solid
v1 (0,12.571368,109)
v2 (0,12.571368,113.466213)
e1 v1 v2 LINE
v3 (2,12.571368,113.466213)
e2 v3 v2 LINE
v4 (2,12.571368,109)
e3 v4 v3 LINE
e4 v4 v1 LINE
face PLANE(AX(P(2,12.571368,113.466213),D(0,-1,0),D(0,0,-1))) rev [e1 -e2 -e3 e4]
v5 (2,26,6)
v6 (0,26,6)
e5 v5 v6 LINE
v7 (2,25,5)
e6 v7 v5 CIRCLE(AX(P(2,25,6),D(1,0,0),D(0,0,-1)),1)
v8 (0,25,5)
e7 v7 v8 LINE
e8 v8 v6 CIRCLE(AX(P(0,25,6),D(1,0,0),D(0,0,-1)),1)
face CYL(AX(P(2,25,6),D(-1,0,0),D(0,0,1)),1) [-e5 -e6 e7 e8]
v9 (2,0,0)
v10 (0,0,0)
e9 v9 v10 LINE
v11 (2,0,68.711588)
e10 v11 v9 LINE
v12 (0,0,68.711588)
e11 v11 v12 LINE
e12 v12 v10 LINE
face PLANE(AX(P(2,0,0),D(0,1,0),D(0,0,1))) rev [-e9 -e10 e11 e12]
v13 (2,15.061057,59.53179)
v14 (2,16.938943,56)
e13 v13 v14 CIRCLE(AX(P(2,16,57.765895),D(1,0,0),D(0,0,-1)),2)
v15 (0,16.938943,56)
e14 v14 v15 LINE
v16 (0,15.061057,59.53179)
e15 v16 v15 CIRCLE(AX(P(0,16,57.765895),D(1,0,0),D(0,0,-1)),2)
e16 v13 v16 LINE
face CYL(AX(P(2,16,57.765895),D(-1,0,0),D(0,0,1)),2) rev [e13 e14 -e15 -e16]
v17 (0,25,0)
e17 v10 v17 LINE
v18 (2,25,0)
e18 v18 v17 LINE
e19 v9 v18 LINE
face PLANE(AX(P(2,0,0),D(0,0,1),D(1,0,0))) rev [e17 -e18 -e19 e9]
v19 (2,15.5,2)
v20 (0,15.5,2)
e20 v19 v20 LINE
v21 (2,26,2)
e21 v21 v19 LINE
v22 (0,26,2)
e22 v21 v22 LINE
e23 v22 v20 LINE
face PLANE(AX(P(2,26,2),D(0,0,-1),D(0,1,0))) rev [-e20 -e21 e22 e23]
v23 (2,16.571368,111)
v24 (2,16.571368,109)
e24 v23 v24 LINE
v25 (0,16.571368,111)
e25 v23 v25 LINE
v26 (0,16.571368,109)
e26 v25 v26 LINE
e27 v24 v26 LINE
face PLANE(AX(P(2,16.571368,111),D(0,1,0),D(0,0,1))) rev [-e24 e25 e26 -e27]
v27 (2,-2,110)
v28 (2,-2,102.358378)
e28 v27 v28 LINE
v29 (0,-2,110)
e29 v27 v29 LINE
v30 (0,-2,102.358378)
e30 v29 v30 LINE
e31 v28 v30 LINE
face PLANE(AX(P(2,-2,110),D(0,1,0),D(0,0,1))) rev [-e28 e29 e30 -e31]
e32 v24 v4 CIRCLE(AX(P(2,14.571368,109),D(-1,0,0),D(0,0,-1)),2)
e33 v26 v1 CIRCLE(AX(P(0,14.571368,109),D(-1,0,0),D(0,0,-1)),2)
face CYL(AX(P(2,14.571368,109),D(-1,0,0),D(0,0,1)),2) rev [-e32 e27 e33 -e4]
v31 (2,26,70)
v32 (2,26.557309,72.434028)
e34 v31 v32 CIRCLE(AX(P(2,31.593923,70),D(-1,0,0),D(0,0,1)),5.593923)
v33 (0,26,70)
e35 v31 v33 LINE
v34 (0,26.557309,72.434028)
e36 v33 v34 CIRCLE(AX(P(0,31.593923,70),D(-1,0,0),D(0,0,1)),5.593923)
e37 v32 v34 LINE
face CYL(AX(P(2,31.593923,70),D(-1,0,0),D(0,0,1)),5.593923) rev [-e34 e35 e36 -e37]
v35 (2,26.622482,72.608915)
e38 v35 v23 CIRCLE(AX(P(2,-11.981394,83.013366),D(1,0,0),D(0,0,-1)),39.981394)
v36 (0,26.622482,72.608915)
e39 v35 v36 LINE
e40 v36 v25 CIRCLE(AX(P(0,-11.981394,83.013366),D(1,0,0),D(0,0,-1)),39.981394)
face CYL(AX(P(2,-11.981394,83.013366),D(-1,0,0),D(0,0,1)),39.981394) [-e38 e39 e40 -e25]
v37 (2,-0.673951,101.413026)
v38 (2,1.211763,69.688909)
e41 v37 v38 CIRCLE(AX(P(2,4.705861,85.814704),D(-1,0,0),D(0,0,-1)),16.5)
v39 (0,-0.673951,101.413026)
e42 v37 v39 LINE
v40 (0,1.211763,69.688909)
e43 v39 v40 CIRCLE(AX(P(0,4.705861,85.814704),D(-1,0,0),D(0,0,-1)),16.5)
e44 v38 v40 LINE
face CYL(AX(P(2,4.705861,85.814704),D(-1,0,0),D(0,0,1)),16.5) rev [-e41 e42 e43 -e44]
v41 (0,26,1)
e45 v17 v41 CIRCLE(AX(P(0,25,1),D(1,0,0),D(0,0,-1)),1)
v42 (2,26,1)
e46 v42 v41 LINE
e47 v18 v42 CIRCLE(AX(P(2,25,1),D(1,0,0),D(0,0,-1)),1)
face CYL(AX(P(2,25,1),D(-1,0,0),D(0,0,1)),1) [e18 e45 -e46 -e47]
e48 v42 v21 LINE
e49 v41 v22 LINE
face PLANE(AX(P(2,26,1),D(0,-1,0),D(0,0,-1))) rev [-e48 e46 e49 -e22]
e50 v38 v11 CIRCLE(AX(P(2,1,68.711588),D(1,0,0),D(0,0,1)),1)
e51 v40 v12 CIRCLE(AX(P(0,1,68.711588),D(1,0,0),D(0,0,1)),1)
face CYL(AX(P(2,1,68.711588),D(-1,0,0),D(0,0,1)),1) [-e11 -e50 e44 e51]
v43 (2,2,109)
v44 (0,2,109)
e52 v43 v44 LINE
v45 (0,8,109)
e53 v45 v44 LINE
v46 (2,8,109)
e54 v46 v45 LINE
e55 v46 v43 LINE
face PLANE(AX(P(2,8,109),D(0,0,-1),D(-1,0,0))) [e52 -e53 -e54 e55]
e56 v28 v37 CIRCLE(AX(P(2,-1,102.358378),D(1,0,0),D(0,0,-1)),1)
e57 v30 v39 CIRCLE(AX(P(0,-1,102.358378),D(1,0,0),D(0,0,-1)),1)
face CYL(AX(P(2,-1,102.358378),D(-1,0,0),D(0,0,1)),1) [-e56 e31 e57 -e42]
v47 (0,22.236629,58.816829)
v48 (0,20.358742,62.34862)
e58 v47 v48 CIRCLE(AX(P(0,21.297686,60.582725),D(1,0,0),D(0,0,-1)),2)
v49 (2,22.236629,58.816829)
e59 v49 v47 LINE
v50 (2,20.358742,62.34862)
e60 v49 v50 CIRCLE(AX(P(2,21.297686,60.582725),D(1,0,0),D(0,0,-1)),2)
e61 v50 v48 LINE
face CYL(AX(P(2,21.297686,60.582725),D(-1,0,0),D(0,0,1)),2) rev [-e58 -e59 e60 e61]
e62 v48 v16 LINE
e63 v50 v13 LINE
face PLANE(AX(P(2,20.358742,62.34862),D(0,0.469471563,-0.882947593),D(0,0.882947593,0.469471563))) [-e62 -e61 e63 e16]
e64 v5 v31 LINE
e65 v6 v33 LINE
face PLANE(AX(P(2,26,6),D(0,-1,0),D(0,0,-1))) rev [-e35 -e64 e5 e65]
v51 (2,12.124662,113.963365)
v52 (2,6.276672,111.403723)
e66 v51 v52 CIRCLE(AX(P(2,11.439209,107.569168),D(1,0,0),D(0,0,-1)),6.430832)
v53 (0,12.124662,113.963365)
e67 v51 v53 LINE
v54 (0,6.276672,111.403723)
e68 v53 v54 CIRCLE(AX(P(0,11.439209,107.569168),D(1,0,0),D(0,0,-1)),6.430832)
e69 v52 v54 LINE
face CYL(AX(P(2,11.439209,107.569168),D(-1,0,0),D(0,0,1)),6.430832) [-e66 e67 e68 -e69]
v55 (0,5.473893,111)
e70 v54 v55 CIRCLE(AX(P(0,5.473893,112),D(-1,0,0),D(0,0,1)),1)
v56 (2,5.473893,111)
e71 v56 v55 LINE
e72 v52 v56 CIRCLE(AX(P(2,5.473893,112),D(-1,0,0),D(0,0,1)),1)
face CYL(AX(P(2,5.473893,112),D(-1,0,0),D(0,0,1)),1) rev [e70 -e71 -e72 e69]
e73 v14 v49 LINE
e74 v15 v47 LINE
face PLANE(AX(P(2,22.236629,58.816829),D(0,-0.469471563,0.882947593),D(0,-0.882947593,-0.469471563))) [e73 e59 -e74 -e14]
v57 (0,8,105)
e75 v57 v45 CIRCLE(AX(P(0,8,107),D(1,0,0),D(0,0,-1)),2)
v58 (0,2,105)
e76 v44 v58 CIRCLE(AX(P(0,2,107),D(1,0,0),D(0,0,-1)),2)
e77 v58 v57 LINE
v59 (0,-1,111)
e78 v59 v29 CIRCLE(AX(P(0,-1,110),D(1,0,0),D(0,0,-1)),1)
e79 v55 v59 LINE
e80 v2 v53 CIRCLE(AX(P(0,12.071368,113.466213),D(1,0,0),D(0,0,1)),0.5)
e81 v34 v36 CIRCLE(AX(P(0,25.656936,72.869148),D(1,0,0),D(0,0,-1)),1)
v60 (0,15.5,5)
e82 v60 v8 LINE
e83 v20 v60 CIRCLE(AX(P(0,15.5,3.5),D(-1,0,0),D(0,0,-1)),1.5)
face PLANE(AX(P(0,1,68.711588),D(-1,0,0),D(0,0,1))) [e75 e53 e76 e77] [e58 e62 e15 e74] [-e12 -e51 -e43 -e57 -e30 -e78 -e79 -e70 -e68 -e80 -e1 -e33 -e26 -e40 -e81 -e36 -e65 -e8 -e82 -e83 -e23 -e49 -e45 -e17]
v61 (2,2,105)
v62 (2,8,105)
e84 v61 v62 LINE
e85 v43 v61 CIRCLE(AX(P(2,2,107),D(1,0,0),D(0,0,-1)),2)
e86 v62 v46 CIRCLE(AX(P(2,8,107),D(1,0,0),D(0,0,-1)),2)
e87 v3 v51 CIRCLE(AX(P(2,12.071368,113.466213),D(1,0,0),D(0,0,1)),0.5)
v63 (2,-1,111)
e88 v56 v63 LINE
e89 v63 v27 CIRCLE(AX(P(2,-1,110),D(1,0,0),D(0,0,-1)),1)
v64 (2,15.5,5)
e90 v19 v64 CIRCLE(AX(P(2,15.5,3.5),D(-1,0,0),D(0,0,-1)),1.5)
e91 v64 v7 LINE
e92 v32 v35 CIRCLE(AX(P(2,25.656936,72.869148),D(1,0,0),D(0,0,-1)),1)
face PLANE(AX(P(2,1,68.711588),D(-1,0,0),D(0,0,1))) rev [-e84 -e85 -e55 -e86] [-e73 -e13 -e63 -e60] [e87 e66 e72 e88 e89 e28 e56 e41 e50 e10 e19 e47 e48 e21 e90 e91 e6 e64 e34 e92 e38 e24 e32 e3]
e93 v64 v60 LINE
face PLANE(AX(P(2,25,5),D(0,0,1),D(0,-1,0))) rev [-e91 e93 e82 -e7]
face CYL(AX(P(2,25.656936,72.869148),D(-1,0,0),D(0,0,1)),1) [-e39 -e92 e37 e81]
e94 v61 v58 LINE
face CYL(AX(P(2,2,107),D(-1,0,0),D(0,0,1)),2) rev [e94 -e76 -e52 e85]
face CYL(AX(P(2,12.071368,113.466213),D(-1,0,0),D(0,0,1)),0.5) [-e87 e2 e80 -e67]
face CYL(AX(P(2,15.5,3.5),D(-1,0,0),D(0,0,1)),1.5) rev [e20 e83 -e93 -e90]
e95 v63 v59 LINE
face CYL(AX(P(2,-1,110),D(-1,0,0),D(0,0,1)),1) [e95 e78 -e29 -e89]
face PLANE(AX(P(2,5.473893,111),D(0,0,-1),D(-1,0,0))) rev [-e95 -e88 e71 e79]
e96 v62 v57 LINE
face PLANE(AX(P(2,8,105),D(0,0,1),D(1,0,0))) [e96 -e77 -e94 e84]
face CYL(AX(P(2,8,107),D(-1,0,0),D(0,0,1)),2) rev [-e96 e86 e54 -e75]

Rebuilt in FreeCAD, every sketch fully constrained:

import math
import FreeCAD as App
import Part
import Sketcher
from FreeCAD import Vector
Q = App.Units.Quantity

doc = App.newDocument("Part")
body = doc.addObject("PartDesign::Body", "Body")

# Sketch on YZ plane
sketch1 = doc.addObject("Sketcher::SketchObject", "Sketch")
body.addObject(sketch1)
sketch1.AttachmentSupport = (doc.YZ_Plane, [""])
sketch1.MapMode = "FlatFace"
sketch1.addGeometry(Part.LineSegment(Vector(0, 0, 0), Vector(25, 0, 0)), False)
sketch1.addGeometry(Part.ArcOfCircle(Part.Circle(Vector(25, 1, 0), Vector(0, 0, 1), 1), math.radians(-90), math.radians(0)), False)
sketch1.addGeometry(Part.LineSegment(Vector(26, 1, 0), Vector(26, 2, 0)), False)
sketch1.addGeometry(Part.LineSegment(Vector(26, 2, 0), Vector(15.5, 2, 0)), False)
sketch1.addGeometry(Part.ArcOfCircle(Part.Circle(Vector(15.5, 3.5, 0), Vector(0, 0, 1), 1.5), math.radians(90), math.radians(270)), False)
sketch1.addGeometry(Part.LineSegment(Vector(15.5, 5, 0), Vector(25, 5, 0)), False)
sketch1.addGeometry(Part.ArcOfCircle(Part.Circle(Vector(25, 6, 0), Vector(0, 0, 1), 1), math.radians(-90), math.radians(0)), False)
sketch1.addGeometry(Part.LineSegment(Vector(26, 6, 0), Vector(26, 70, 0)), False)
sketch1.addGeometry(Part.ArcOfCircle(Part.Circle(Vector(31.59, 70, 0), Vector(0, 0, 1), 5.59), math.radians(154), math.radians(180)), False)
sketch1.addGeometry(Part.ArcOfCircle(Part.Circle(Vector(25.66, 72.87, 0), Vector(0, 0, 1), 1), math.radians(-25.79), math.radians(-15.08)), False)
sketch1.addGeometry(Part.ArcOfCircle(Part.Circle(Vector(-11.98, 83.01, 0), Vector(0, 0, 1), 39.98), math.radians(-15), math.radians(44)), False)
sketch1.addGeometry(Part.LineSegment(Vector(16.57, 111, 0), Vector(16.57, 109, 0)), False)
sketch1.addGeometry(Part.ArcOfCircle(Part.Circle(Vector(14.57, 109, 0), Vector(0, 0, 1), 2), math.radians(180), math.radians(360)), False)
sketch1.addGeometry(Part.LineSegment(Vector(12.57, 109, 0), Vector(12.57, 113.47, 0)), False)
sketch1.addGeometry(Part.ArcOfCircle(Part.Circle(Vector(12.07, 113.47, 0), Vector(0, 0, 1), 0.5), math.radians(0), math.radians(84)), False)
sketch1.addGeometry(Part.ArcOfCircle(Part.Circle(Vector(11.44, 107.57, 0), Vector(0, 0, 1), 6.43), math.radians(84), math.radians(143)), False)
sketch1.addGeometry(Part.ArcOfCircle(Part.Circle(Vector(5.47, 112, 0), Vector(0, 0, 1), 1), math.radians(-90), math.radians(-37)), False)
sketch1.addGeometry(Part.LineSegment(Vector(5.47, 111, 0), Vector(-1, 111, 0)), False)
sketch1.addGeometry(Part.ArcOfCircle(Part.Circle(Vector(-1, 110, 0), Vector(0, 0, 1), 1), math.radians(90), math.radians(180)), False)
sketch1.addGeometry(Part.LineSegment(Vector(-2, 110, 0), Vector(-2, 102.36, 0)), False)
sketch1.addGeometry(Part.ArcOfCircle(Part.Circle(Vector(-1, 102.36, 0), Vector(0, 0, 1), 1), math.radians(180), math.radians(289)), False)
sketch1.addGeometry(Part.ArcOfCircle(Part.Circle(Vector(4.71, 85.81, 0), Vector(0, 0, 1), 16.5), math.radians(-102), math.radians(109)), False)
sketch1.addGeometry(Part.ArcOfCircle(Part.Circle(Vector(1, 68.71, 0), Vector(0, 0, 1), 1), math.radians(78), math.radians(180)), False)
sketch1.addGeometry(Part.LineSegment(Vector(0, 68.71, 0), Vector(0, 0, 0)), False)
sketch1.addGeometry(Part.ArcOfCircle(Part.Circle(Vector(8, 107, 0), Vector(0, 0, 1), 2), math.radians(-90), math.radians(90)), False)
sketch1.addGeometry(Part.LineSegment(Vector(8, 105, 0), Vector(2, 105, 0)), False)
sketch1.addGeometry(Part.ArcOfCircle(Part.Circle(Vector(2, 107, 0), Vector(0, 0, 1), 2), math.radians(90), math.radians(270)), False)
sketch1.addGeometry(Part.LineSegment(Vector(2, 109, 0), Vector(8, 109, 0)), False)
sketch1.addGeometry(Part.ArcOfCircle(Part.Circle(Vector(21.3, 60.58, 0), Vector(0, 0, 1), 2), math.radians(-62), math.radians(118)), False)
sketch1.addGeometry(Part.LineSegment(Vector(22.24, 58.82, 0), Vector(16.94, 56, 0)), False)
sketch1.addGeometry(Part.ArcOfCircle(Part.Circle(Vector(16, 57.77, 0), Vector(0, 0, 1), 2), math.radians(118), math.radians(298)), False)
sketch1.addGeometry(Part.LineSegment(Vector(15.06, 59.53, 0), Vector(20.36, 62.35, 0)), False)
sketch1.addConstraint(Sketcher.Constraint("Tangent", 0, 2, 1, 1))
sketch1.addConstraint(Sketcher.Constraint("Tangent", 1, 2, 2, 1))
sketch1.addConstraint(Sketcher.Constraint("Coincident", 2, 2, 3, 1))
sketch1.addConstraint(Sketcher.Constraint("Tangent", 3, 2, 4, 2))
sketch1.addConstraint(Sketcher.Constraint("Tangent", 4, 1, 5, 1))
sketch1.addConstraint(Sketcher.Constraint("Tangent", 5, 2, 6, 1))
sketch1.addConstraint(Sketcher.Constraint("Tangent", 6, 2, 7, 1))
sketch1.addConstraint(Sketcher.Constraint("Tangent", 7, 2, 8, 2))
sketch1.addConstraint(Sketcher.Constraint("Tangent", 8, 1, 9, 1))
sketch1.addConstraint(Sketcher.Constraint("Tangent", 9, 2, 10, 1))
sketch1.addConstraint(Sketcher.Constraint("Coincident", 10, 2, 11, 1))
sketch1.addConstraint(Sketcher.Constraint("Tangent", 11, 2, 12, 2))
sketch1.addConstraint(Sketcher.Constraint("Tangent", 12, 1, 13, 1))
sketch1.addConstraint(Sketcher.Constraint("Tangent", 13, 2, 14, 1))
sketch1.addConstraint(Sketcher.Constraint("Tangent", 14, 2, 15, 1))
sketch1.addConstraint(Sketcher.Constraint("Tangent", 15, 2, 16, 2))
sketch1.addConstraint(Sketcher.Constraint("Tangent", 16, 1, 17, 1))
sketch1.addConstraint(Sketcher.Constraint("Tangent", 17, 2, 18, 1))
sketch1.addConstraint(Sketcher.Constraint("Tangent", 18, 2, 19, 1))
sketch1.addConstraint(Sketcher.Constraint("Tangent", 19, 2, 20, 1))
sketch1.addConstraint(Sketcher.Constraint("Tangent", 20, 2, 21, 2))
sketch1.addConstraint(Sketcher.Constraint("Tangent", 21, 1, 22, 1))
sketch1.addConstraint(Sketcher.Constraint("Tangent", 22, 2, 23, 1))
sketch1.addConstraint(Sketcher.Constraint("Coincident", 23, 2, 0, 1))
sketch1.addConstraint(Sketcher.Constraint("Tangent", 24, 1, 25, 1))
sketch1.addConstraint(Sketcher.Constraint("Tangent", 25, 2, 26, 2))
sketch1.addConstraint(Sketcher.Constraint("Tangent", 26, 1, 27, 1))
sketch1.addConstraint(Sketcher.Constraint("Tangent", 27, 2, 24, 2))
sketch1.addConstraint(Sketcher.Constraint("Tangent", 28, 1, 29, 1))
sketch1.addConstraint(Sketcher.Constraint("Tangent", 29, 2, 30, 2))
sketch1.addConstraint(Sketcher.Constraint("Tangent", 30, 1, 31, 1))
sketch1.addConstraint(Sketcher.Constraint("Tangent", 31, 2, 28, 2))
sketch1.addConstraint(Sketcher.Constraint("Horizontal", 0))
sketch1.addConstraint(Sketcher.Constraint("Vertical", 2))
sketch1.addConstraint(Sketcher.Constraint("Horizontal", 3))
sketch1.addConstraint(Sketcher.Constraint("Horizontal", 5))
sketch1.addConstraint(Sketcher.Constraint("Vertical", 7))
sketch1.addConstraint(Sketcher.Constraint("Vertical", 11))
sketch1.addConstraint(Sketcher.Constraint("Vertical", 13))
sketch1.addConstraint(Sketcher.Constraint("Horizontal", 17))
sketch1.addConstraint(Sketcher.Constraint("Vertical", 19))
sketch1.addConstraint(Sketcher.Constraint("Vertical", 23))
sketch1.addConstraint(Sketcher.Constraint("Horizontal", 25))
sketch1.addConstraint(Sketcher.Constraint("Horizontal", 27))
sketch1.addConstraint(Sketcher.Constraint("Coincident", 23, 2, -1, 1))
sketch1.addConstraint(Sketcher.Constraint("Equal", 1, 6))
sketch1.addConstraint(Sketcher.Constraint("Equal", 6, 9))
sketch1.addConstraint(Sketcher.Constraint("Equal", 9, 16))
sketch1.addConstraint(Sketcher.Constraint("Equal", 16, 18))
sketch1.addConstraint(Sketcher.Constraint("Equal", 18, 20))
sketch1.addConstraint(Sketcher.Constraint("Equal", 20, 22))
sketch1.addConstraint(Sketcher.Constraint("Equal", 12, 24))
sketch1.addConstraint(Sketcher.Constraint("Equal", 26, 28))
sketch1.addConstraint(Sketcher.Constraint("Equal", 28, 30))
sketch1.addConstraint(Sketcher.Constraint("Horizontal", 10, 2, 16, 1))
sketch1.addConstraint(Sketcher.Constraint("Horizontal", 12, 1, 26, 1))
sketch1.addConstraint(Sketcher.Constraint("Vertical", 1, 3, 6, 3))
sketch1.addConstraint(Sketcher.Constraint("Radius", 1, 1.0))
sketch1.addConstraint(Sketcher.Constraint("Radius", 12, 2.0))
sketch1.addConstraint(Sketcher.Constraint("Radius", 4, 1.5))
sketch1.addConstraint(Sketcher.Constraint("Radius", 14, 0.5))
sketch1.addConstraint(Sketcher.Constraint("Radius", 21, 16.5))
sketch1.addConstraint(Sketcher.Constraint("DistanceX", 0, 1, 0, 2, 25.0))
sketch1.addConstraint(Sketcher.Constraint("DistanceX", 25, 2, 25, 1, 6.0))
sketch1.addConstraint(Sketcher.Constraint("DistanceY", 2, 1, 2, 2, 1.0))
sketch1.addConstraint(Sketcher.Constraint("DistanceY", 7, 1, 7, 2, 64.0))
sketch1.addConstraint(Sketcher.Constraint("DistanceY", 11, 2, 11, 1, 2.0))
sketch1.addConstraint(Sketcher.Constraint("Angle", 29, Q("-152 deg")))
sketch1.addConstraint(Sketcher.Constraint("Distance", 29, 6.0))
sketch1.addConstraint(Sketcher.Constraint("DistanceX", 3, 2, 3, 1, 10.5))
sketch1.addConstraint(Sketcher.Constraint("DistanceY", -1, 1, 12, 3, 109.0))
sketch1.addConstraint(Sketcher.Constraint("DistanceX", 18, 3, -1, 1, 1.0))
sketch1.addConstraint(Sketcher.Constraint("DistanceX", -1, 1, 24, 3, 8.0))
sketch1.addConstraint(Sketcher.Constraint("DistanceX", -1, 1, 30, 3, 16.0))
sketch1.addConstraint(Sketcher.Constraint("DistanceY", -1, 1, 29, 2, 56.0))
sketch1.addConstraint(Sketcher.Constraint("Radius", 8, 5.593923))
sketch1.addConstraint(Sketcher.Constraint("Radius", 10, 39.981394))
sketch1.addConstraint(Sketcher.Constraint("Radius", 15, 6.430832))
sketch1.addConstraint(Sketcher.Constraint("DistanceY", 19, 2, 19, 1, 7.641622))
sketch1.addConstraint(Sketcher.Constraint("DistanceY", 10, 3, 15, 3, 24.555802))
sketch1.addConstraint(Sketcher.Constraint("DistanceY", 28, 1, 8, 1, 13.617198))
sketch1.addConstraint(Sketcher.Constraint("DistanceX", 17, 2, 17, 1, 6.473893))
sketch1.addConstraint(Sketcher.Constraint("DistanceY", 13, 1, 13, 2, 4.466213))
sketch1.addConstraint(Sketcher.Constraint("DistanceY", 23, 2, 23, 1, 68.711588))
pad1 = doc.addObject("PartDesign::Pad", "Pad")
body.addObject(pad1)
pad1.Profile = sketch1
pad1.Length = 2

doc.recompute()
